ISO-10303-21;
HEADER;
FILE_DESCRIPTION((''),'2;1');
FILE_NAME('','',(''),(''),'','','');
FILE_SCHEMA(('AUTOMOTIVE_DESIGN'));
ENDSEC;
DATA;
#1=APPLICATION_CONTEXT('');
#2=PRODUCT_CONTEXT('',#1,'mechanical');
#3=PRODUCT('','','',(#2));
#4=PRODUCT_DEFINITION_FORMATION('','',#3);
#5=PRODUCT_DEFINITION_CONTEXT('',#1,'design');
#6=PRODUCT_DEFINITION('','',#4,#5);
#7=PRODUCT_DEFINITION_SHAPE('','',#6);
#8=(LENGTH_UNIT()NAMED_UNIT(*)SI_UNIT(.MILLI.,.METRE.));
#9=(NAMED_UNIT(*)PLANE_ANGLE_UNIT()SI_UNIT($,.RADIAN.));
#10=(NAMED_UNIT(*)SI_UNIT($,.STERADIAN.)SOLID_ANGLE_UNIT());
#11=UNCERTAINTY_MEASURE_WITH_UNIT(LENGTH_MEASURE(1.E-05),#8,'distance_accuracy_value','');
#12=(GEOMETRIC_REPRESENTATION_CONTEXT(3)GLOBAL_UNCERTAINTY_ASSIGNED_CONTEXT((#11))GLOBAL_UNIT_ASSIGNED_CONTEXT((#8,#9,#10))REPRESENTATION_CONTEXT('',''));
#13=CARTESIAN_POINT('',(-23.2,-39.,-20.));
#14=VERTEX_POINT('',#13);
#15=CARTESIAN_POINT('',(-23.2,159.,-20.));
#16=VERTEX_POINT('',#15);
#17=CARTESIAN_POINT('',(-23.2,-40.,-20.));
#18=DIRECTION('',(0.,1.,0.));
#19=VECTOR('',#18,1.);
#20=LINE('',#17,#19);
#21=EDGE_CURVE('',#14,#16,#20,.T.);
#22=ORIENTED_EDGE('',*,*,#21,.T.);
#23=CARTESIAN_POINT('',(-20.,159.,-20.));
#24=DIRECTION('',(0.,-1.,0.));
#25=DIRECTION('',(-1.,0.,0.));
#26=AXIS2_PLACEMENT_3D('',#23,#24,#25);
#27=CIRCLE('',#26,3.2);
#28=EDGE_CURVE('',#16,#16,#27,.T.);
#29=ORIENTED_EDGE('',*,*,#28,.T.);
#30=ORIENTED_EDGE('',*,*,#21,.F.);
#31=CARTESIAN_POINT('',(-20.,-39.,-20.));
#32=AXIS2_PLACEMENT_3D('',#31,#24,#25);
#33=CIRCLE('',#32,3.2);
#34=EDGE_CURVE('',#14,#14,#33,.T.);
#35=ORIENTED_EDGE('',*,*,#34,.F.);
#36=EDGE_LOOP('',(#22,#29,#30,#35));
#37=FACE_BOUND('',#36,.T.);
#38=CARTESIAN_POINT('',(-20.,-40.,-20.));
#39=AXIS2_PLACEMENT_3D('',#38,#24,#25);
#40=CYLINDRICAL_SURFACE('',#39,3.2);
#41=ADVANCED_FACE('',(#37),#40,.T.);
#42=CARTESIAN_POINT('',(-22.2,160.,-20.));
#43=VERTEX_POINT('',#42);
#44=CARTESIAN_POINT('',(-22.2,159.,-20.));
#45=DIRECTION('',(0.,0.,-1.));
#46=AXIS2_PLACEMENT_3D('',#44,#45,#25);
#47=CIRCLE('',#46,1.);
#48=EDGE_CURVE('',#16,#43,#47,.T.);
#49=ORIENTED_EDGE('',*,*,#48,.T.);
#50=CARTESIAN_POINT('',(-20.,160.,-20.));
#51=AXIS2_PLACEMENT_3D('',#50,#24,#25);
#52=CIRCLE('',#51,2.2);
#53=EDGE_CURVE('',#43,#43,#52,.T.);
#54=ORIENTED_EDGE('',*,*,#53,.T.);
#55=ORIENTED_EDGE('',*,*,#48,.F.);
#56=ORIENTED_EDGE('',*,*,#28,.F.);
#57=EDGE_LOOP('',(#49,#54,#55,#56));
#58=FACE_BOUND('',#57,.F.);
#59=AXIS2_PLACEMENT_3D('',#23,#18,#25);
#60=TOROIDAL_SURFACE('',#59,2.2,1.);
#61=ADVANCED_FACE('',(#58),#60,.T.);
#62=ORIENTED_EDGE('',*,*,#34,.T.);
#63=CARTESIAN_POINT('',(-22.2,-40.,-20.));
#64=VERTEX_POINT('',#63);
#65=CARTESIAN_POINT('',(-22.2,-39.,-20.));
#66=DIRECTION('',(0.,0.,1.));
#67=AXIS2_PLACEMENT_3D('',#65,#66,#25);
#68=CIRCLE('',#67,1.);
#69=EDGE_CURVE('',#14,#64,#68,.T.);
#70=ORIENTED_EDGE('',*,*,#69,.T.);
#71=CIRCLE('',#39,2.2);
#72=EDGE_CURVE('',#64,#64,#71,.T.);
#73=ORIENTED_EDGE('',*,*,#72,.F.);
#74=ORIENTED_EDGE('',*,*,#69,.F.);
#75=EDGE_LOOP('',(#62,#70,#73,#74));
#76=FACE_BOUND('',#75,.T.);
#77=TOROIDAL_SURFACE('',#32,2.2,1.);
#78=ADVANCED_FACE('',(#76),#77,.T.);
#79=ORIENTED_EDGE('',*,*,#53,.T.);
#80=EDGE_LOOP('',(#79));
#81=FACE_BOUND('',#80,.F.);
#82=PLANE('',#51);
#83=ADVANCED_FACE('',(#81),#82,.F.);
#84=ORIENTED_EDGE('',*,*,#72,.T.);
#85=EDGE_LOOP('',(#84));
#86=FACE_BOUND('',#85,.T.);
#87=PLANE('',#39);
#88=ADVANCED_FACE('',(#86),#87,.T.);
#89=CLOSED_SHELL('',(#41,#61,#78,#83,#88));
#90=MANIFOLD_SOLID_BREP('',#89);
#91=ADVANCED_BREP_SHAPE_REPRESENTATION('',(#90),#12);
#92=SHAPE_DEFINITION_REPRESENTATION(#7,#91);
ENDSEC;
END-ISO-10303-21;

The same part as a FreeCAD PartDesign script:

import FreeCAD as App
import Part
import Sketcher

V = App.Vector
Q = App.Units.Quantity


def edges_at(feature, points):
    """Names of the edges that pass closest to the given points."""
    edges = feature.Shape.Edges
    near = lambda p: min(range(len(edges)), key=lambda i: edges[i].distToShape(Part.Vertex(*p))[0])
    return sorted({f"Edge{near(p) + 1}" for p in points})

doc = App.newDocument("Part")
params = doc.addObject("Spreadsheet::Sheet", "Params")
for row, (alias, value) in enumerate([
    ("sketch1_diameter", "6.4 mm"),
    ("pad1_length", "200 mm"),
    ("fillet_radius", "1 mm"),
    ("fillet2_radius", "1 mm"),
], start=1):
    params.set(f"A{row}", alias)
    params.set(f"B{row}", "=" + value)
    params.setAlias(f"B{row}", alias)

body = doc.addObject("PartDesign::Body", "Body")

# Sketch on XZ plane
sketch1 = body.newObject("Sketcher::SketchObject", "Sketch")
sketch1.AttachmentSupport = (doc.getObject("XZ_Plane"), [""])
sketch1.MapMode = "FlatFace"
sketch1.AttachmentOffset = App.Placement(V(0, 0, 40), App.Rotation())
sketch1.addGeometry(Part.Circle(V(20, 20, 0), V(0, 0, 1), 3.2), False)
sketch1.addConstraint(Sketcher.Constraint("Diameter", 0, Q("6.4 mm")))
sketch1.addConstraint(Sketcher.Constraint("DistanceX", -1, 1, 0, 3, Q("20 mm")))
sketch1.addConstraint(Sketcher.Constraint("DistanceY", -1, 1, 0, 3, Q("20 mm")))
sketch1.setExpression("Constraints[0]", "Params.sketch1_diameter")
pad1 = body.newObject("PartDesign::Pad", "Pad")
pad1.Profile = sketch1
pad1.setExpression("Length", "Params.pad1_length")
pad1.Reversed = True
doc.recompute()

fillet = body.newObject("PartDesign::Fillet", "Fillet")
fillet.Base = (pad1, edges_at(pad1, [(16.8, -40, 20)]))
fillet.setExpression("Radius", "Params.fillet_radius")
doc.recompute()

fillet2 = body.newObject("PartDesign::Fillet", "Fillet001")
fillet2.Base = (fillet, edges_at(fillet, [(16.8, 160, 20)]))
fillet2.setExpression("Radius", "Params.fillet2_radius")
body2 = doc.addObject("PartDesign::Body", "Body001")
doc.recompute()

body.Placement = App.Placement(V(0, 0, 0), App.Rotation(V(0, 1, 0), 90))
boolean = body2.newObject("PartDesign::Boolean", "Boolean")
boolean.Type = "Fuse"
boolean.addObjects([body])
body3 = doc.addObject("PartDesign::Body", "Body002")
doc.recompute()

body2.Placement = App.Placement(V(0, 0, 0), App.Rotation(V(0, 1, 0), 90))
boolean2 = body3.newObject("PartDesign::Boolean", "Boolean001")
boolean2.Type = "Fuse"
boolean2.addObjects([body2])

doc.recompute()
